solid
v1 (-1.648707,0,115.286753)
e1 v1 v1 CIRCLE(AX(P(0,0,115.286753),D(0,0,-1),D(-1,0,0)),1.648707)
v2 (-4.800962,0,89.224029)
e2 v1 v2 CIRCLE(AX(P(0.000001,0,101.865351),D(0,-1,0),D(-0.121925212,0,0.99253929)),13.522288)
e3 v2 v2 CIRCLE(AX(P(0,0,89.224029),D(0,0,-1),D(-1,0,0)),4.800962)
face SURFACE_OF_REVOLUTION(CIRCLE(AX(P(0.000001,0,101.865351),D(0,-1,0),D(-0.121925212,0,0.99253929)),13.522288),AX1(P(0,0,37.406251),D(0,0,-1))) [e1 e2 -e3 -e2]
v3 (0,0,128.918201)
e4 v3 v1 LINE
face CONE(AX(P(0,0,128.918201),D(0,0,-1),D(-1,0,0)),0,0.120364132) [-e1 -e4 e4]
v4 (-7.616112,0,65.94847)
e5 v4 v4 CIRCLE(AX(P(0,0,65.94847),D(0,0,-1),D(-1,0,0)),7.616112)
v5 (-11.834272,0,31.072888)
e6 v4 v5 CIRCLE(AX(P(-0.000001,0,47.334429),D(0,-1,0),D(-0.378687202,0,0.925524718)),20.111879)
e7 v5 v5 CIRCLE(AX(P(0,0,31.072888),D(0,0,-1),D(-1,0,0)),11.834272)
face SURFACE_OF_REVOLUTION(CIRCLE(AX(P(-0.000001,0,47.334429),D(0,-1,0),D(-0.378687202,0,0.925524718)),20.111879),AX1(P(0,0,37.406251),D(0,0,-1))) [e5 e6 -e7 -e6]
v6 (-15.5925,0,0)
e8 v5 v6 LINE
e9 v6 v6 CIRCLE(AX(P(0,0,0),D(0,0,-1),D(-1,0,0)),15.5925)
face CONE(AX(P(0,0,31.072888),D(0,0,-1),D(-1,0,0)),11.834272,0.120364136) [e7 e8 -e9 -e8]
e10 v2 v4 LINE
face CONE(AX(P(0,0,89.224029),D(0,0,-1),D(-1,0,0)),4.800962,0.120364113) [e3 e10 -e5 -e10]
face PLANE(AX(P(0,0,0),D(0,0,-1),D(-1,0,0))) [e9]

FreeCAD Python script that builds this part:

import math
import FreeCAD as App
import Part
import Sketcher

V = App.Vector

doc = App.newDocument("Part")
body = doc.addObject("PartDesign::Body", "Body")

# Sketch on XZ plane
sketch1 = body.newObject("Sketcher::SketchObject", "Sketch")
sketch1.AttachmentSupport = (doc.getObject("XZ_Plane"), [""])
sketch1.MapMode = "FlatFace"
sketch1.addGeometry(Part.LineSegment(V(-16, 0, 0), V(0, 0, 0)), False)
sketch1.addGeometry(Part.LineSegment(V(0, 0, 0), V(0, 129, 0)), False)
sketch1.addGeometry(Part.LineSegment(V(0, 129, 0), V(-2, 115, 0)), False)
sketch1.addGeometry(Part.ArcOfCircle(Part.Circle(V(0, 102, 0), V(0, 0, 1), 14), math.radians(97), math.radians(249)), False)
sketch1.addGeometry(Part.LineSegment(V(-5, 89, 0), V(-8, 66, 0)), False)
sketch1.addGeometry(Part.ArcOfCircle(Part.Circle(V(0, 47, 0), V(0, 0, 1), 20), math.radians(112), math.radians(234)), False)
sketch1.addGeometry(Part.LineSegment(V(-12, 31, 0), V(-16, 0, 0)), False)
sketch1.addConstraint(Sketcher.Constraint("Coincident", 0, 2, 1, 1))
sketch1.addConstraint(Sketcher.Constraint("Coincident", 1, 2, 2, 1))
sketch1.addConstraint(Sketcher.Constraint("Coincident", 2, 2, 3, 1))
sketch1.addConstraint(Sketcher.Constraint("Coincident", 3, 2, 4, 1))
sketch1.addConstraint(Sketcher.Constraint("Coincident", 4, 2, 5, 1))
sketch1.addConstraint(Sketcher.Constraint("Coincident", 5, 2, 6, 1))
sketch1.addConstraint(Sketcher.Constraint("Coincident", 6, 2, 0, 1))
sketch1.addConstraint(Sketcher.Constraint("Horizontal", 0))
sketch1.addConstraint(Sketcher.Constraint("Vertical", 1))
sketch1.addConstraint(Sketcher.Constraint("Coincident", 0, 2, -1, 1))
sketch1.addConstraint(Sketcher.Constraint("PointOnObject", 3, 3, -2))
sketch1.addConstraint(Sketcher.Constraint("PointOnObject", 5, 3, -2))
sketch1.addConstraint(Sketcher.Constraint("Parallel", 2, 4))
sketch1.addConstraint(Sketcher.Constraint("Parallel", 4, 6))
sketch1.addConstraint(Sketcher.Constraint("Radius", 5, 20.111879))
sketch1.addConstraint(Sketcher.Constraint("DistanceX", 0, 1, 0, 2, 15.5925))
sketch1.addConstraint(Sketcher.Constraint("DistanceY", 1, 1, 1, 2, 128.918201))
sketch1.addConstraint(Sketcher.Constraint("Radius", 3, 13.522288))
sketch1.addConstraint(Sketcher.Constraint("DistanceY", 3, 3, 2, 2, 13.421402))
sketch1.addConstraint(Sketcher.Constraint("DistanceY", 5, 3, 3, 2, 41.8896))
sketch1.addConstraint(Sketcher.Constraint("Distance", 2, 13.730791))
sketch1.addConstraint(Sketcher.Constraint("Distance", 6, 31.299339))
revolution = body.newObject("PartDesign::Revolution", "Revolution")
revolution.Profile = sketch1
revolution.ReferenceAxis = (sketch1, ["V_Axis"])
revolution.Angle = 360

doc.recompute()
